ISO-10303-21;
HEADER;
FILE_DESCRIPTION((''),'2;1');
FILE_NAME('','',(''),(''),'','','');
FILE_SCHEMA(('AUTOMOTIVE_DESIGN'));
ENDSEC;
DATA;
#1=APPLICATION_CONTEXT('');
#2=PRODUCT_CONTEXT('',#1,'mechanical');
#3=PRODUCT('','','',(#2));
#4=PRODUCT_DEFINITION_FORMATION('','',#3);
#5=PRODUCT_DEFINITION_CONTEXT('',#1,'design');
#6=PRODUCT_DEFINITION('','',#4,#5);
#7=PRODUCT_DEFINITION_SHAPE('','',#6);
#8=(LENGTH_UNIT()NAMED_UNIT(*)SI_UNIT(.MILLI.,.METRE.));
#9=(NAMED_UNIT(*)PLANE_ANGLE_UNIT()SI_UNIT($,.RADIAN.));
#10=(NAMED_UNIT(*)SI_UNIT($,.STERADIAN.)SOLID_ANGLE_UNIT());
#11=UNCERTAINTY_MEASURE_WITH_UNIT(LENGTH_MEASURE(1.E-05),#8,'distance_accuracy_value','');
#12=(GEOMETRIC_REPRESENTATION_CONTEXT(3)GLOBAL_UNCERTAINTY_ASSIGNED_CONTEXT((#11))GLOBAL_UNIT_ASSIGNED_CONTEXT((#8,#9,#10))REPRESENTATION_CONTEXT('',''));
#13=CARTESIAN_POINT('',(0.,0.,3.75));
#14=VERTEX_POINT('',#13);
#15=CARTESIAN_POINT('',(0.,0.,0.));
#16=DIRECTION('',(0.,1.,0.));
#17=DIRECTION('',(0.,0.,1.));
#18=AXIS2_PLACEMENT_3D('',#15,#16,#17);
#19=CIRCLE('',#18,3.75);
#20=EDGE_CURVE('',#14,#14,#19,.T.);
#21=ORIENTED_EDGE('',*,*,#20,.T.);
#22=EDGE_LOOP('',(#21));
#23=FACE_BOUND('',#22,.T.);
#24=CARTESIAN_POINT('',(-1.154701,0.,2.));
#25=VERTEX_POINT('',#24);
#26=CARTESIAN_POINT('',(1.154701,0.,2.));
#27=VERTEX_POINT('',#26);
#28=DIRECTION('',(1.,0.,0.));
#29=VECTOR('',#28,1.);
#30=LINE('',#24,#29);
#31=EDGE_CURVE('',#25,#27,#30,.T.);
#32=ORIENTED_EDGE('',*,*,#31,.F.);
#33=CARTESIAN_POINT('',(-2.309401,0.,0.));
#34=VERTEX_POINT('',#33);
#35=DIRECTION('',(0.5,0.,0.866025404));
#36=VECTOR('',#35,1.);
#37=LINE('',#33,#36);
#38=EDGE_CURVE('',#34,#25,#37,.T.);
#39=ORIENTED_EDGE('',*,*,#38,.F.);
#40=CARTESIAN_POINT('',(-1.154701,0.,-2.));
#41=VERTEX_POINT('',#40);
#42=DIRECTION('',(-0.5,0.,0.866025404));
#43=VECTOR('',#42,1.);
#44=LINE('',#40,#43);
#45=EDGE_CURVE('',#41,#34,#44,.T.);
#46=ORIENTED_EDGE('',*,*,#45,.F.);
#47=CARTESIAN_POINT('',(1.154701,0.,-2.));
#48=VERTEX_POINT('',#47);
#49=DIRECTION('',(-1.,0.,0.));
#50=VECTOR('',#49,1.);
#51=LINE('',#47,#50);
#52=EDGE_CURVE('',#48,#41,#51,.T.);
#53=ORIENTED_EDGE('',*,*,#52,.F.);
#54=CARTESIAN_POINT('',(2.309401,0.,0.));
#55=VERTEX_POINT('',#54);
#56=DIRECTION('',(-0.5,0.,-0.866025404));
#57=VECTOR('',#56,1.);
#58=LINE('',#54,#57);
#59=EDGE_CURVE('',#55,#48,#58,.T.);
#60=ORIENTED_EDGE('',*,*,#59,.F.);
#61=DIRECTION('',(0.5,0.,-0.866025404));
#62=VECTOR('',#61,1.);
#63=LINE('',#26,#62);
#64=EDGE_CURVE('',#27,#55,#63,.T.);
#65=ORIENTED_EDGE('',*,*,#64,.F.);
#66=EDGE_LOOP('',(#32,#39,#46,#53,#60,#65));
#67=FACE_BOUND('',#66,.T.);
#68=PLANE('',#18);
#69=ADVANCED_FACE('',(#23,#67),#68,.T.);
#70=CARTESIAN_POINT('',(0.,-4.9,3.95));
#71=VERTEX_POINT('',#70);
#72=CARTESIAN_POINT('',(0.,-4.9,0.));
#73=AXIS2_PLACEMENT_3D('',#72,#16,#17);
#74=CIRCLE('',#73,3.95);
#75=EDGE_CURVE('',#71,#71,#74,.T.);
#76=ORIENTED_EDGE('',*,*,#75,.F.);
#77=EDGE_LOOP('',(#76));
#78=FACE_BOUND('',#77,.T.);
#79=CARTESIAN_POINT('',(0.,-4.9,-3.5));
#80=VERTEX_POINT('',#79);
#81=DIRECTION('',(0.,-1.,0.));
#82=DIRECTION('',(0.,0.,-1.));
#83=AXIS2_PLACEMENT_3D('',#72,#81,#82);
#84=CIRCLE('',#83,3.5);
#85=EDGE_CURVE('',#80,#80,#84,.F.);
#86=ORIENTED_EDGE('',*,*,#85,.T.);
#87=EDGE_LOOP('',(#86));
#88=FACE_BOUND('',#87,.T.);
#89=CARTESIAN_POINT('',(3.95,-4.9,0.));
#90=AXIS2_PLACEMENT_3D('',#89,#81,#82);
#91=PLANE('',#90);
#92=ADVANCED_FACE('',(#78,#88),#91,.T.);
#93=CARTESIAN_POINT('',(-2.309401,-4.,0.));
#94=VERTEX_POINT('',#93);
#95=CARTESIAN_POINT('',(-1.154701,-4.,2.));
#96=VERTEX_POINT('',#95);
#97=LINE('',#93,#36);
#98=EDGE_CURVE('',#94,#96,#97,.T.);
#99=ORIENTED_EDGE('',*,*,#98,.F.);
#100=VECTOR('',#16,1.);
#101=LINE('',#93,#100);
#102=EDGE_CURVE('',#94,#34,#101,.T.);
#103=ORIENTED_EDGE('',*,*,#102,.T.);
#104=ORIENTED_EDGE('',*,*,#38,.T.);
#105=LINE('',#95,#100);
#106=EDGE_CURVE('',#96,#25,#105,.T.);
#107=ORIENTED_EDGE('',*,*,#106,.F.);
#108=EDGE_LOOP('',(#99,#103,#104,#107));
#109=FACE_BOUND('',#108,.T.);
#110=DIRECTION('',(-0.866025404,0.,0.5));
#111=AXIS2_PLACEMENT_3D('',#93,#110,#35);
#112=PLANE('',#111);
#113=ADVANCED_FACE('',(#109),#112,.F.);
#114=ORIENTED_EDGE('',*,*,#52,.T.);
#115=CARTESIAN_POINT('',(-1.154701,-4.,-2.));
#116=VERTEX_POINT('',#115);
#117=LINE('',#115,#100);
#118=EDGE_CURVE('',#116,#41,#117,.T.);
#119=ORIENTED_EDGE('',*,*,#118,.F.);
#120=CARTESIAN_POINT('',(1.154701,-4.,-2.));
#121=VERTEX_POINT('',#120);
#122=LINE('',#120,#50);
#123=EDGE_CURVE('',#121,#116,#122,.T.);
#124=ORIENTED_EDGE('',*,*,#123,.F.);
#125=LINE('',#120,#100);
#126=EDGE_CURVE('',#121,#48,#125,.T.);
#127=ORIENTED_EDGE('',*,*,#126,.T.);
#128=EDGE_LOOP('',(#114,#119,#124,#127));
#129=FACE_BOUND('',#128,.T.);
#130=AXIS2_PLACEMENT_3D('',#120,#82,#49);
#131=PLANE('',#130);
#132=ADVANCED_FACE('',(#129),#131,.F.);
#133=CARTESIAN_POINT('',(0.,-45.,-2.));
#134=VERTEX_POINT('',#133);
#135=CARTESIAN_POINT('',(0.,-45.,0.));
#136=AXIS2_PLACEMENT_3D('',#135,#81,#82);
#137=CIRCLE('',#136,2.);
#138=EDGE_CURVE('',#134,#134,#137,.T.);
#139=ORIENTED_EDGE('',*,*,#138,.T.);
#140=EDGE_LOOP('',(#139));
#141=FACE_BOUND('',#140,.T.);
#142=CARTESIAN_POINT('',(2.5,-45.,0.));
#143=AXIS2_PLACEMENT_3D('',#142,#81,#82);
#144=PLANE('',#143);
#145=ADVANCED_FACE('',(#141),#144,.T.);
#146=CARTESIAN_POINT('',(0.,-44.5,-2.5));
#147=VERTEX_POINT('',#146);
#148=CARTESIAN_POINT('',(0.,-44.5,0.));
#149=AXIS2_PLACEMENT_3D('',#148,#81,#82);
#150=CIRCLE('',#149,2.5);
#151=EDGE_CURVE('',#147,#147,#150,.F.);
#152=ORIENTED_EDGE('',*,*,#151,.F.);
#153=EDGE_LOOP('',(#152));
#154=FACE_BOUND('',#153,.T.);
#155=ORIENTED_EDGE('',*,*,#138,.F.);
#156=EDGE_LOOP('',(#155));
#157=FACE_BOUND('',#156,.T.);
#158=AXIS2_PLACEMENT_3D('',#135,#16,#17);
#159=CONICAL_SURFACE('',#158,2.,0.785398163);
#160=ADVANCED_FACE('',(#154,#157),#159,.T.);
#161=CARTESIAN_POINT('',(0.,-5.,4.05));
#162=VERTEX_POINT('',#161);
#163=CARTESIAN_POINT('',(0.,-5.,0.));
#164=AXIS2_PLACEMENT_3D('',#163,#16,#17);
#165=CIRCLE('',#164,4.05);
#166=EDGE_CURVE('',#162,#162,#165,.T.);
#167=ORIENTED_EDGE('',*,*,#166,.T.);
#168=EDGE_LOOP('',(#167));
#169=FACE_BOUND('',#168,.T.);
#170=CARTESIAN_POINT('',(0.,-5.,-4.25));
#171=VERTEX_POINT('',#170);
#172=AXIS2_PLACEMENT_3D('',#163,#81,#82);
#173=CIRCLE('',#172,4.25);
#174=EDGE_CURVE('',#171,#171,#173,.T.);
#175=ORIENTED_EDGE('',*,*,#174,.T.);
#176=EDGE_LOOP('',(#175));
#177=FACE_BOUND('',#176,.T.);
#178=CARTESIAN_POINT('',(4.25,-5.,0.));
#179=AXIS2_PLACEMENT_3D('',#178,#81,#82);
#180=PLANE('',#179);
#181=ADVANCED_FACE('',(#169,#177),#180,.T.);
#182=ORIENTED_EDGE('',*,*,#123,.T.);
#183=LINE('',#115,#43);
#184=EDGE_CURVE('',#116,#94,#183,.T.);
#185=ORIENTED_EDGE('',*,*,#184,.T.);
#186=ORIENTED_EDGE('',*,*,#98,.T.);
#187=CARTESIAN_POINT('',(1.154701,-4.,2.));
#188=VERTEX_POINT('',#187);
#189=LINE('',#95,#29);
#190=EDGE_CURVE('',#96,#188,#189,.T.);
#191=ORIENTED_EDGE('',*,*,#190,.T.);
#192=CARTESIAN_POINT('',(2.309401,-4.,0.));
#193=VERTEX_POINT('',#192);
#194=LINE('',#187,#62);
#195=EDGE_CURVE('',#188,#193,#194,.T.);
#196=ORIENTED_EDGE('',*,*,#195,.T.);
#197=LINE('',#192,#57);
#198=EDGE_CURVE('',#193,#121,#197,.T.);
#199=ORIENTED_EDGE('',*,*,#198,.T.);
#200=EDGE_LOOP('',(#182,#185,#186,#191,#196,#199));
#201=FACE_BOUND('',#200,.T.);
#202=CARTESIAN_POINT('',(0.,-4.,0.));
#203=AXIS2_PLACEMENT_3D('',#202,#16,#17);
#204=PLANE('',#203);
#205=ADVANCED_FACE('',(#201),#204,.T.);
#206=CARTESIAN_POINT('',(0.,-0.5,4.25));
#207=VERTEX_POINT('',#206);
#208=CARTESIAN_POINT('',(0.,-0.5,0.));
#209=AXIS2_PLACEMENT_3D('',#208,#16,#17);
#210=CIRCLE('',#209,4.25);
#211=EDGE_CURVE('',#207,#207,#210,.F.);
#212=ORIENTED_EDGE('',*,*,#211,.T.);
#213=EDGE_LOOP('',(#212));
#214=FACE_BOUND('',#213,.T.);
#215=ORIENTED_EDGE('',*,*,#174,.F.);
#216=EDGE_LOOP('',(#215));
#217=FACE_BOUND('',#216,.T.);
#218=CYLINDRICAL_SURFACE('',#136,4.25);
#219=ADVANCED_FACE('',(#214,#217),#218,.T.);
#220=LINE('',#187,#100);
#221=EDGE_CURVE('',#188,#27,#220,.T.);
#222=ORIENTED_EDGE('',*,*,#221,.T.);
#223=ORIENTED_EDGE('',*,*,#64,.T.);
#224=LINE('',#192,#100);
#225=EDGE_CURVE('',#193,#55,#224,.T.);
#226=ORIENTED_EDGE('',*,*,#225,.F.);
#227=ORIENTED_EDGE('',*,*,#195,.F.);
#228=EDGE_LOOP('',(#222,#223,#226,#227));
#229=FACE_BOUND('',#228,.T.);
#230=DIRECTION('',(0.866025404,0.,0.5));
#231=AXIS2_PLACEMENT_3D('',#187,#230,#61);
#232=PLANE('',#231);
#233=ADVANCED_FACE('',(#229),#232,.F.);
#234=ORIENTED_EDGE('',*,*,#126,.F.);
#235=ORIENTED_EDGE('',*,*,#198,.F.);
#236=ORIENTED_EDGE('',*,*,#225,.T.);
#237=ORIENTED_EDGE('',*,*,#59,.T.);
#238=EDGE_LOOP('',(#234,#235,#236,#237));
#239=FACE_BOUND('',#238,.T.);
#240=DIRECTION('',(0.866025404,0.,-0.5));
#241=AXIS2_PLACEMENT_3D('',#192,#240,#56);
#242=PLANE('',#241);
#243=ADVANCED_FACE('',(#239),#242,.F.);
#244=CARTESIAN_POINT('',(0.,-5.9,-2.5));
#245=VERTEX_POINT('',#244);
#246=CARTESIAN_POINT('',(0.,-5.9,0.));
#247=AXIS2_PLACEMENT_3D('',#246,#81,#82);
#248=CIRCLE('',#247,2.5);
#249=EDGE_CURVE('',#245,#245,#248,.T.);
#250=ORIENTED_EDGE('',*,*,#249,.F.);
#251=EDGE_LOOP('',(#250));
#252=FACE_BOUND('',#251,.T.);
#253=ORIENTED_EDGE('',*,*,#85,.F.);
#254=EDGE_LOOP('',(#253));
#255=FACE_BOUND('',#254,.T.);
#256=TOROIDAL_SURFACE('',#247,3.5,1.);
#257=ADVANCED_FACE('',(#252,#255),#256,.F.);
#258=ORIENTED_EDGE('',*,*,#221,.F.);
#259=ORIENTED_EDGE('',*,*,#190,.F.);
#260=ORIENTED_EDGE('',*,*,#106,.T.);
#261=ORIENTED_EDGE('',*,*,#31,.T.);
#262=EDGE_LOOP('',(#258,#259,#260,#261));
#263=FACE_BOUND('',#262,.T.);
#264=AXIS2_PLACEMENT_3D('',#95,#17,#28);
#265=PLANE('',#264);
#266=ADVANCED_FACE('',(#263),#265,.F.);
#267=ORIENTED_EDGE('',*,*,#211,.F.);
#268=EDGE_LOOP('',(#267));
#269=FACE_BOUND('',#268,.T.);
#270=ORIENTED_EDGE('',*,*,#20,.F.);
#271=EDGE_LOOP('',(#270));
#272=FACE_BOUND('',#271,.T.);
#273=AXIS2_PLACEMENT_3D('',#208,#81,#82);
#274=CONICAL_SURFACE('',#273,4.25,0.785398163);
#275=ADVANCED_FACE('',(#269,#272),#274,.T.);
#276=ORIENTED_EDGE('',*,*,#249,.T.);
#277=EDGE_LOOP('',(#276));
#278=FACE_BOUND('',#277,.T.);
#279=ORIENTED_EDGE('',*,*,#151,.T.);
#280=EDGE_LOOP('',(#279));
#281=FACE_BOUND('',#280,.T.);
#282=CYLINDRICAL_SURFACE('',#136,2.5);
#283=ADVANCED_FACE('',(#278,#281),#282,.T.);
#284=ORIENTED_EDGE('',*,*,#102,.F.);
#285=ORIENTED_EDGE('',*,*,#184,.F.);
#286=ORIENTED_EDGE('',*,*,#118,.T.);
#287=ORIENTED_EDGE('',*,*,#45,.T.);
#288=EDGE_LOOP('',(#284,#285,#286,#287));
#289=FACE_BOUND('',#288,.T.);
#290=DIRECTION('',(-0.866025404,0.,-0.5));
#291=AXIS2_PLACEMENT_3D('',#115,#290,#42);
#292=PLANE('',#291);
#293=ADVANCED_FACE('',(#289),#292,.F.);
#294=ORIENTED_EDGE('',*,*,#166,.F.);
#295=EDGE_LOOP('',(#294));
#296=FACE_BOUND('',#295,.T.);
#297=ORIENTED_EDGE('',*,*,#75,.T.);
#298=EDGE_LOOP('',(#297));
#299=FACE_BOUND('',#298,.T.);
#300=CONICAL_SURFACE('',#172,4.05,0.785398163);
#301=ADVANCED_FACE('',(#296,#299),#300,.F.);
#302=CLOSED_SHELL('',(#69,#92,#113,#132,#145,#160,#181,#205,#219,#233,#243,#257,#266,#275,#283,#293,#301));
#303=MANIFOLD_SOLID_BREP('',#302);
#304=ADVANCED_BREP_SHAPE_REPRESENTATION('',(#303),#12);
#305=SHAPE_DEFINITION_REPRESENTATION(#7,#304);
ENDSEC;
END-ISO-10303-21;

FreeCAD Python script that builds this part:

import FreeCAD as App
import Part
import Sketcher
from FreeCAD import Vector
Q = App.Units.Quantity


def edges_at(feature, points):
    """Names of the edges that pass closest to the given points."""
    edges = feature.Shape.Edges
    near = lambda p: min(range(len(edges)), key=lambda i: edges[i].distToShape(Part.Vertex(*p))[0])
    return sorted({f"Edge{near(p) + 1}" for p in points})


def add_polygon(sketch, points):
    """Adds a closed chain of lines whose ends are joined by coincident constraints."""
    first, n = sketch.GeometryCount, len(points)
    for a, b in zip(points, points[1:] + points[:1]):
        sketch.addGeometry(Part.LineSegment(App.Vector(*a, 0), App.Vector(*b, 0)), False)
    for i in range(n):
        sketch.addConstraint(Sketcher.Constraint("Coincident", first + i, 2, first + (i + 1) % n, 1))

doc = App.newDocument("Part")
body = doc.addObject("PartDesign::Body", "Body")

sketch1 = body.newObject("Sketcher::SketchObject", "Sketch")
sketch1.AttachmentSupport = (doc.getObject("XY_Plane"), [""])
sketch1.MapMode = "FlatFace"
add_polygon(sketch1, [(4.2, 0), (0, 0), (0, -45), (2.5, -45), (2.5, -5), (4.2, -5)])
sketch1.addConstraint([
    Sketcher.Constraint("Horizontal", 0),
    Sketcher.Constraint("Vertical", 1),
    Sketcher.Constraint("Horizontal", 2),
    Sketcher.Constraint("Vertical", 3),
    Sketcher.Constraint("Horizontal", 4),
    Sketcher.Constraint("Vertical", 5),
    Sketcher.Constraint("Coincident", 0, 2, -1, 1),
    Sketcher.Constraint("DistanceY", 1, 2, 1, 1, Q("45 mm")),
    Sketcher.Constraint("DistanceY", 3, 1, 3, 2, Q("40 mm")),
    Sketcher.Constraint("DistanceX", 2, 1, 2, 2, Q("2.5 mm")),
    Sketcher.Constraint("DistanceX", 0, 2, 0, 1, Q("4.25 mm")),
])
revolution = body.newObject("PartDesign::Revolution", "Revolution")
revolution.Profile = sketch1
revolution.ReferenceAxis = (sketch1, ["V_Axis"])
revolution.Angle = 360
doc.recompute()

chamfer = body.newObject("PartDesign::Chamfer", "Chamfer")
chamfer.Base = (revolution, edges_at(revolution, [(0, -45, 2.5), (0, 0, 4.25)]))
chamfer.Size = 0.5

sketch2 = body.newObject("Sketcher::SketchObject", "Sketch001")
sketch2.AttachmentSupport = (doc.getObject("XY_Plane"), [""])
sketch2.MapMode = "FlatFace"
add_polygon(sketch2, [(3.95, -4.9), (2.5, -4.9), (2.5, -5.68), (4.05, -5.68), (4.05, -5)])
sketch2.addConstraint([
    Sketcher.Constraint("Horizontal", 0),
    Sketcher.Constraint("Vertical", 1),
    Sketcher.Constraint("Horizontal", 2),
    Sketcher.Constraint("Vertical", 3),
    Sketcher.Constraint("Angle", 4, Q("135 deg")),
    Sketcher.Constraint("DistanceY", 3, 2, -1, 1, Q("5 mm")),
    Sketcher.Constraint("DistanceX", 0, 2, 0, 1, Q("1.45 mm")),
    Sketcher.Constraint("DistanceX", 2, 1, 2, 2, Q("1.55 mm")),
    Sketcher.Constraint("DistanceX", -1, 1, 0, 2, Q("2.5 mm")),
    Sketcher.Constraint("DistanceY", 1, 2, 1, 1, Q("0.779574 mm")),
])
groove = body.newObject("PartDesign::Groove", "Groove")
groove.Profile = sketch2
groove.ReferenceAxis = (sketch2, ["V_Axis"])
groove.Angle = 360
doc.recompute()

fillet = body.newObject("PartDesign::Fillet", "Fillet")
fillet.Base = (groove, edges_at(groove, [(0, -4.9, -2.5)]))
fillet.Radius = 1

sketch3 = body.newObject("Sketcher::SketchObject", "Sketch002")
sketch3.AttachmentSupport = (doc.getObject("XZ_Plane"), [""])
sketch3.MapMode = "FlatFace"
add_polygon(sketch3, [(-1.2, -2), (-2.3, 0), (-1.2, 2), (1.2, 2), (2.3, 0), (1.2, -2)])
sketch3.addConstraint([
    Sketcher.Constraint("Horizontal", 2),
    Sketcher.Constraint("Horizontal", 5),
    Sketcher.Constraint("Symmetric", 0, 2, 3, 2, -1, 1),
    Sketcher.Constraint("Symmetric", 1, 2, 4, 2, -1, 1),
    Sketcher.Constraint("PointOnObject", 0, 2, -1),
    Sketcher.Constraint("Parallel", 0, 3),
    Sketcher.Constraint("Vertical", 2, 2, 4, 2),
    Sketcher.Constraint("Angle", 0, Q("120 deg")),
    Sketcher.Constraint("DistanceY", -1, 1, 1, 2, Q("2 mm")),
    Sketcher.Constraint("DistanceX", 2, 1, 2, 2, Q("2.309401 mm")),
])
pocket1 = body.newObject("PartDesign::Pocket", "Pocket")
pocket1.Profile = sketch3
pocket1.Length = 4
pocket1.Reversed = True

doc.recompute()
